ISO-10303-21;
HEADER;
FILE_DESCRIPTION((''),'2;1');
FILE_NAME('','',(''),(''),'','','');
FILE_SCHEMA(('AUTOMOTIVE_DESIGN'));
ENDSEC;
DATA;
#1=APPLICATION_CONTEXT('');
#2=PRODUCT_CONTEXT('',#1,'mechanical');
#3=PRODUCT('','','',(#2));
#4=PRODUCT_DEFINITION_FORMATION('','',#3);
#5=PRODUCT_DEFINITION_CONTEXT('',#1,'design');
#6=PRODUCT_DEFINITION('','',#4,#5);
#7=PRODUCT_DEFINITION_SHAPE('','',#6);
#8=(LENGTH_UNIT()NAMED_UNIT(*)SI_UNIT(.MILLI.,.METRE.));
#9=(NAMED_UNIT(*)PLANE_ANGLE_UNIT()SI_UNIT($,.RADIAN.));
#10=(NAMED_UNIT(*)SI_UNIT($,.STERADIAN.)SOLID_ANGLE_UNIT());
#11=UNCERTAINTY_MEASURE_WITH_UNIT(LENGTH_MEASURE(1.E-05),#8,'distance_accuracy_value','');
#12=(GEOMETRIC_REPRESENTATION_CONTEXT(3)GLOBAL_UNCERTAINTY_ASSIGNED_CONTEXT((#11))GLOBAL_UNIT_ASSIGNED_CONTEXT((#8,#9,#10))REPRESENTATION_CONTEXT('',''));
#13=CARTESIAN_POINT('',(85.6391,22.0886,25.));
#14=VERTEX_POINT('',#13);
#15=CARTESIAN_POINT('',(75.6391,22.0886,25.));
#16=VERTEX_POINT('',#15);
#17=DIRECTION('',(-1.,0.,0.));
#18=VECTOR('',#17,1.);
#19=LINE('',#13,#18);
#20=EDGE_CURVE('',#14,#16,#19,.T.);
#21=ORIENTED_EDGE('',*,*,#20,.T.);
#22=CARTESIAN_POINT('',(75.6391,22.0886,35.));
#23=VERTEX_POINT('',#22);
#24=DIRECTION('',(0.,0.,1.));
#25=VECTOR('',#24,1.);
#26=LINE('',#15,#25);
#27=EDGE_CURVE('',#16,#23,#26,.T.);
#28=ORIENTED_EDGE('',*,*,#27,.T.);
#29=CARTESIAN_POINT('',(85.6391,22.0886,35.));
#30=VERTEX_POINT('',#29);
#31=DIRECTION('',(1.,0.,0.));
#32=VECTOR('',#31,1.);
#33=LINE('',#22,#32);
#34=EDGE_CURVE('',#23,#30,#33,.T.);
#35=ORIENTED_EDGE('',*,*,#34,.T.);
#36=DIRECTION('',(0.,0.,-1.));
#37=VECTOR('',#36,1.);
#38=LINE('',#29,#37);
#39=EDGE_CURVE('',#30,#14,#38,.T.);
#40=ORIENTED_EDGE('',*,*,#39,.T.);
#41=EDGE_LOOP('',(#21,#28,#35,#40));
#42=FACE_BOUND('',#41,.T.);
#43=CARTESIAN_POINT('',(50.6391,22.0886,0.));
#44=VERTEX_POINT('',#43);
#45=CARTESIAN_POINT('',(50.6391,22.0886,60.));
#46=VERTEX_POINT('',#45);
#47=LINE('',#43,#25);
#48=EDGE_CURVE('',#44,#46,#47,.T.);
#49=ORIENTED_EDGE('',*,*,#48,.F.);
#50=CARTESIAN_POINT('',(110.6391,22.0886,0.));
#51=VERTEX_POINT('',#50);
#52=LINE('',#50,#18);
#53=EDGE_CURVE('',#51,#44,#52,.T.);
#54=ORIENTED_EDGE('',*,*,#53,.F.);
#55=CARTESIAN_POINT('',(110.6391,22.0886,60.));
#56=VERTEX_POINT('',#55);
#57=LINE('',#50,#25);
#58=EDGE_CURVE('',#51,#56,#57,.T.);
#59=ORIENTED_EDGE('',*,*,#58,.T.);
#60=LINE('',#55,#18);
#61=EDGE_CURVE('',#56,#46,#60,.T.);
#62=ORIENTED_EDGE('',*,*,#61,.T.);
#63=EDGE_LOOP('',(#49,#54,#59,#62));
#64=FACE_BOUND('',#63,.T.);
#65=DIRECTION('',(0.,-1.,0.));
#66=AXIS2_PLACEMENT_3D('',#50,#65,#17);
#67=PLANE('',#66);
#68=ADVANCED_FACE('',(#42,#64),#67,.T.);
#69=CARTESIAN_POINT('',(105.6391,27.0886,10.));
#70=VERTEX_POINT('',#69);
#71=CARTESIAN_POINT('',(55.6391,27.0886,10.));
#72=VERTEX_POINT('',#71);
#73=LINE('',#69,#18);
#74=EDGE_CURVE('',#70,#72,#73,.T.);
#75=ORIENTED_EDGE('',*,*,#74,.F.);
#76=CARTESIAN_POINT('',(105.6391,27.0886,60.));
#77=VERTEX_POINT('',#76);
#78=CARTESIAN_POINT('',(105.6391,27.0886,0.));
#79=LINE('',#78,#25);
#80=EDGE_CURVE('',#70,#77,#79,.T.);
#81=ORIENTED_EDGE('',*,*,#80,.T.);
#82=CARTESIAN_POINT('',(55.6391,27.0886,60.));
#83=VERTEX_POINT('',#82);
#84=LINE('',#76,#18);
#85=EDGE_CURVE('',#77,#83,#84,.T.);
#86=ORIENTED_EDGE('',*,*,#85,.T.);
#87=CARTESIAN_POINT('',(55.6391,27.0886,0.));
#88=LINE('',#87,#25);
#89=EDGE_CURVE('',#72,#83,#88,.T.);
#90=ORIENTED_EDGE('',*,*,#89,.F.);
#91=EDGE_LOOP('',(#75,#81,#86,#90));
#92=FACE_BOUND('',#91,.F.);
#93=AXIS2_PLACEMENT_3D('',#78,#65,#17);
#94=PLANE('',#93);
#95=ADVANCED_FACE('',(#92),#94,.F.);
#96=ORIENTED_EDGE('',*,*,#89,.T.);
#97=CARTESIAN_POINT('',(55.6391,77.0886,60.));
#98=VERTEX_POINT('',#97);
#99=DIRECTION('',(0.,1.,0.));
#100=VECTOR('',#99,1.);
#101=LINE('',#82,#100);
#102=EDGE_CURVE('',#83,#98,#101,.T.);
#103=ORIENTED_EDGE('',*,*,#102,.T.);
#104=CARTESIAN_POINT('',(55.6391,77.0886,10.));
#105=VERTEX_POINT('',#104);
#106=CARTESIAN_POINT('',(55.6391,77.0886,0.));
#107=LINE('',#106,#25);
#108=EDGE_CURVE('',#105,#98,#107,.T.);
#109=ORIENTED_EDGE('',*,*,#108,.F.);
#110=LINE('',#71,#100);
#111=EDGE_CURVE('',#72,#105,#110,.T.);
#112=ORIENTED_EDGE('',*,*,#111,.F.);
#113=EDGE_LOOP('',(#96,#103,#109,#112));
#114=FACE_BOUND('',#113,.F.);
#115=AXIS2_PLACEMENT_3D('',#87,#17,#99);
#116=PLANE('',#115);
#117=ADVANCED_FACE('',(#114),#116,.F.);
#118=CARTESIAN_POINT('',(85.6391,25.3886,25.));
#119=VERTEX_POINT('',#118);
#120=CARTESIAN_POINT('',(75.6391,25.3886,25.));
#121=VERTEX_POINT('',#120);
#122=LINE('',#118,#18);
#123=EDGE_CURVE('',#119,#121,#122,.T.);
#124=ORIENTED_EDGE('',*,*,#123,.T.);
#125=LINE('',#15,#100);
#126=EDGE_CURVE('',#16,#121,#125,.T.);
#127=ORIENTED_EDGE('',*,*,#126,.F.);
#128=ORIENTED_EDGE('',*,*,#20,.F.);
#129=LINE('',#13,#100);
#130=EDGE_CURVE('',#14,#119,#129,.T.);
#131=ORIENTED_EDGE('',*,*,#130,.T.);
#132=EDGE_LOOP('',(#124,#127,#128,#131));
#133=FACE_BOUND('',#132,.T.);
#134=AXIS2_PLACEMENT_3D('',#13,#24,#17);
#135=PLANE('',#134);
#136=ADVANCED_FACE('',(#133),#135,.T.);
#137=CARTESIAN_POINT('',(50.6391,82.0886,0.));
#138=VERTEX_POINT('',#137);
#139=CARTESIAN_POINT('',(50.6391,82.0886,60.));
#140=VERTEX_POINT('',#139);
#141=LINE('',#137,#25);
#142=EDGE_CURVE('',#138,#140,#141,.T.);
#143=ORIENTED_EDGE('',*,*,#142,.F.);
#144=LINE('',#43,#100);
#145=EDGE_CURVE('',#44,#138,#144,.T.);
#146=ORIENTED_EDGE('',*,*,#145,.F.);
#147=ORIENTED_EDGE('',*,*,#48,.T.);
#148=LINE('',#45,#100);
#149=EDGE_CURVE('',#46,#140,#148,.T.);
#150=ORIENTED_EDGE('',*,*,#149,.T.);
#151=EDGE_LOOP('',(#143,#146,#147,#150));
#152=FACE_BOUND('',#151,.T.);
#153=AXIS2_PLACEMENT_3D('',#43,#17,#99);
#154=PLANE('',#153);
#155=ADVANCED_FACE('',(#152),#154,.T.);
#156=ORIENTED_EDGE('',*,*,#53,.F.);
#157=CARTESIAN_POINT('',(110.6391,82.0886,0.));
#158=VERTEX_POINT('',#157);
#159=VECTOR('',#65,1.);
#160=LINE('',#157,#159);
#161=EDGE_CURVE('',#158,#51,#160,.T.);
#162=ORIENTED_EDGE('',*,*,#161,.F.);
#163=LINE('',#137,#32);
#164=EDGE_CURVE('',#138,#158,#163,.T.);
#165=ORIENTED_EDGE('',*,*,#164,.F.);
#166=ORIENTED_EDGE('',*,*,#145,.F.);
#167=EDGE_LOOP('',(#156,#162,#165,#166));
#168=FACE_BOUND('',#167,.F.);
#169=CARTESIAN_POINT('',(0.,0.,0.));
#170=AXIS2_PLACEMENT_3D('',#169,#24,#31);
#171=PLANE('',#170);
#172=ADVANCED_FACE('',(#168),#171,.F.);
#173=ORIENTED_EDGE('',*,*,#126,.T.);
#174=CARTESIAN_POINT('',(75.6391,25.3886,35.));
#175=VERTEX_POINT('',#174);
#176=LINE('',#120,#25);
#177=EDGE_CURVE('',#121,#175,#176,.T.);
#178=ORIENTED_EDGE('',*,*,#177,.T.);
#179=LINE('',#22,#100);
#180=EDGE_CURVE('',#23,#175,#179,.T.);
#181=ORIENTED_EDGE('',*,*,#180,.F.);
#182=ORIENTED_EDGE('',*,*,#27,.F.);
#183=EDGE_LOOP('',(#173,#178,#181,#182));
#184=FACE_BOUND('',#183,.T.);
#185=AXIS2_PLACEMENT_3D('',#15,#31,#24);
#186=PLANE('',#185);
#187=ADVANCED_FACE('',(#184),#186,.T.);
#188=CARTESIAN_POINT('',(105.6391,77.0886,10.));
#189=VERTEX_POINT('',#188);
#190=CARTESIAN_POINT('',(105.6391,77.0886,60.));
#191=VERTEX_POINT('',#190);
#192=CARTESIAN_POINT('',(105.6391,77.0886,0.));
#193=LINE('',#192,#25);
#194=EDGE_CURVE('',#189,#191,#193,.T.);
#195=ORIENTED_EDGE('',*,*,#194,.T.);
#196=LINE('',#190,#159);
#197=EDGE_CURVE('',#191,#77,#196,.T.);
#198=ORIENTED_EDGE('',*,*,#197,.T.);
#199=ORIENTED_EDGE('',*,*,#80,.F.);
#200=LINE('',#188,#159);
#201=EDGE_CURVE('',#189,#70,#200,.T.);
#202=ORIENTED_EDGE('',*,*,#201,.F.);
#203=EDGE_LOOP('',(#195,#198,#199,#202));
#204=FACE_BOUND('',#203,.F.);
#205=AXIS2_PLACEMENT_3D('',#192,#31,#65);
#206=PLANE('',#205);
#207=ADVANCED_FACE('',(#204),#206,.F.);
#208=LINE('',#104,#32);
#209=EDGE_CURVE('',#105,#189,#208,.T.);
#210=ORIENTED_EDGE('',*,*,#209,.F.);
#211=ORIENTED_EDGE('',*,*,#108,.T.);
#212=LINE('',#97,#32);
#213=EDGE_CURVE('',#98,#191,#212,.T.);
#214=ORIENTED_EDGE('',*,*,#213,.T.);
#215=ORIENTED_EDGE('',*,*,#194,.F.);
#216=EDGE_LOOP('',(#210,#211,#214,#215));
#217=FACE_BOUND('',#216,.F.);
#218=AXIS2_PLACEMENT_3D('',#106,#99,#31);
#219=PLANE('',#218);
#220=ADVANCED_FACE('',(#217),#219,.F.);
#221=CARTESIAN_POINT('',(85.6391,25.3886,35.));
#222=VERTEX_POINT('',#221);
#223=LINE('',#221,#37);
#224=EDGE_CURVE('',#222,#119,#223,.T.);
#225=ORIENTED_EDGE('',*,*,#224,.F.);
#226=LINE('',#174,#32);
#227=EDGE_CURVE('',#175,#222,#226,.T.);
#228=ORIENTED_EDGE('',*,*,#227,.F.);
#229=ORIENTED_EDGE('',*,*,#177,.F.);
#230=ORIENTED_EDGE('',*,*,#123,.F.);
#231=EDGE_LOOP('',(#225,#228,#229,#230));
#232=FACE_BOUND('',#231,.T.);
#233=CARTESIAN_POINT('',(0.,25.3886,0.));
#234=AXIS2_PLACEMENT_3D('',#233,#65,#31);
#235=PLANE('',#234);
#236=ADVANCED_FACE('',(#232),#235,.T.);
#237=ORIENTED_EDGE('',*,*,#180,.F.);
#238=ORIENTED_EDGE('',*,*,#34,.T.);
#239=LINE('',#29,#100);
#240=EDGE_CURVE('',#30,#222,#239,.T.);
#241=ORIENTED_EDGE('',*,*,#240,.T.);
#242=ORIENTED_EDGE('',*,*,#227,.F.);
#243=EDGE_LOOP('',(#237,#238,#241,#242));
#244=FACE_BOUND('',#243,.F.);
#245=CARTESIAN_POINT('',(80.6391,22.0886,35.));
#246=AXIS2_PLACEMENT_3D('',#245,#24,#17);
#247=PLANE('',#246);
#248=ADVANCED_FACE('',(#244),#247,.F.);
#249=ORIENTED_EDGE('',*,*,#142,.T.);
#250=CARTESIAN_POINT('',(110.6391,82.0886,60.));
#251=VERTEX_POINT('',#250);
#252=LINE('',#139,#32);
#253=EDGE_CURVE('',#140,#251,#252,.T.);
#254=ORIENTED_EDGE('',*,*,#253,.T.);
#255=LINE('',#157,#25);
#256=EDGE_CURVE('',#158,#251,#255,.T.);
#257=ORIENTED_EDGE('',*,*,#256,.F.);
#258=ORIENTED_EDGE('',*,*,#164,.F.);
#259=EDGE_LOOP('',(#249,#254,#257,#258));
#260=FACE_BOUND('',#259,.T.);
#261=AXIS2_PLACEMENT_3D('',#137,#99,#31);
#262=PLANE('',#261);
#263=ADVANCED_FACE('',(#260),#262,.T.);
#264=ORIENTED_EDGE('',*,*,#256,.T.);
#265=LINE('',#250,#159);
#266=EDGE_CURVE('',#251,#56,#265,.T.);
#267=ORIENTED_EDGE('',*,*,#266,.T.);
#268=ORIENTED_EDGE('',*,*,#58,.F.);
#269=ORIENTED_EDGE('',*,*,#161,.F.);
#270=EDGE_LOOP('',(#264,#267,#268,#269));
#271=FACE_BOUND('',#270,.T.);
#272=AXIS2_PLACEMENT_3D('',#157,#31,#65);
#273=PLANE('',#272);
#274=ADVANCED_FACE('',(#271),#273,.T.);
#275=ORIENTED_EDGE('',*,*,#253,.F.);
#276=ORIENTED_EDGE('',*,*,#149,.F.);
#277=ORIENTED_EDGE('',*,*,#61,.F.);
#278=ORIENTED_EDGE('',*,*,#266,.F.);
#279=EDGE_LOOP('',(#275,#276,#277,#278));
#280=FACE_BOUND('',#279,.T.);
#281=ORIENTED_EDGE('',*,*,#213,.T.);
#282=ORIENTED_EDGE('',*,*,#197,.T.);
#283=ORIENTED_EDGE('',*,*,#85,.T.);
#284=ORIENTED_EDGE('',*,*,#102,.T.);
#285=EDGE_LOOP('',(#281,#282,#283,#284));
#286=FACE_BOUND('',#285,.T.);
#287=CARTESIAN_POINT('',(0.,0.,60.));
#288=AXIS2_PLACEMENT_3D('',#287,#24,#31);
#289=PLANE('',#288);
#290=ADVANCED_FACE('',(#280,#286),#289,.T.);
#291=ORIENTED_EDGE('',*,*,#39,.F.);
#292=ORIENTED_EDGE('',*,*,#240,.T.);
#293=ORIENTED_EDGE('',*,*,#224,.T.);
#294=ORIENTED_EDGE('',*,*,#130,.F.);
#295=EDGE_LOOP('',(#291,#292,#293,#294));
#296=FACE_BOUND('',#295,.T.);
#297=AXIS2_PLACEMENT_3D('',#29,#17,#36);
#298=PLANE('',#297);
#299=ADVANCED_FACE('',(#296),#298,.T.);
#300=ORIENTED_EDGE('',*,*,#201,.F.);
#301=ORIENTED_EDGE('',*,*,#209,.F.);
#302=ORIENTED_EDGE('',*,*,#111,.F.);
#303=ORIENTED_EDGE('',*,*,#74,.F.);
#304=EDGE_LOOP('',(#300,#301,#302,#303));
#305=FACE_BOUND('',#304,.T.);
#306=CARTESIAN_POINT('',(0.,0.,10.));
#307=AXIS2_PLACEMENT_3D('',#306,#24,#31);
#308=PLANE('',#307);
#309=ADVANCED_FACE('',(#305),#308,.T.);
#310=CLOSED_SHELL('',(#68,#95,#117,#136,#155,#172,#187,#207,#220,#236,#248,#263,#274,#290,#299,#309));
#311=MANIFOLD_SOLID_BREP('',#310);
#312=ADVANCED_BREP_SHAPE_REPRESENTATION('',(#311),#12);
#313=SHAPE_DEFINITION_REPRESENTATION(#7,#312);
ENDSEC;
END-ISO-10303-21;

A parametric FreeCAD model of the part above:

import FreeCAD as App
import Part
import Sketcher


def add_polygon(sketch, points):
    """Adds a closed chain of lines whose ends are joined by coincident constraints."""
    first, n = sketch.GeometryCount, len(points)
    for a, b in zip(points, points[1:] + points[:1]):
        sketch.addGeometry(Part.LineSegment(App.Vector(*a, 0), App.Vector(*b, 0)), False)
    for i in range(n):
        sketch.addConstraint(Sketcher.Constraint("Coincident", first + i, 2, first + (i + 1) % n, 1))

doc = App.newDocument("Part")
body = doc.addObject("PartDesign::Body", "Body")

# Sketch on XY plane
sketch1 = body.newObject("Sketcher::SketchObject", "Sketch")
sketch1.AttachmentSupport = (doc.getObject("XY_Plane"), [""])
sketch1.MapMode = "FlatFace"
add_polygon(sketch1, [(106, 77), (56, 77), (56, 27), (106, 27)])  # lines 0-3
sketch1.addConstraint([
    Sketcher.Constraint("Horizontal", 0),
    Sketcher.Constraint("Vertical", 1),
    Sketcher.Constraint("Horizontal", 2),
    Sketcher.Constraint("Vertical", 3),
    Sketcher.Constraint("Equal", 2, 1),
    Sketcher.Constraint("DistanceX", 0, 2, 0, 1, 50.0),
    Sketcher.Constraint("DistanceX", -1, 1, 0, 2, 55.639),
    Sketcher.Constraint("DistanceY", -1, 1, 0, 2, 77.0886),
])
pad1 = body.newObject("PartDesign::Pad", "Pad")
pad1.Profile = sketch1
pad1.Length = 10

# Sketch on XY plane
sketch2 = body.newObject("Sketcher::SketchObject", "Sketch001")
sketch2.AttachmentSupport = (doc.getObject("XY_Plane"), [""])
sketch2.MapMode = "FlatFace"
add_polygon(sketch2, [(111, 82), (51, 82), (51, 22), (111, 22)])  # lines 0-3
add_polygon(sketch2, [(56, 27), (56, 77), (106, 77), (106, 27)])  # lines 4-7
sketch2.addConstraint([
    Sketcher.Constraint("Horizontal", 0),
    Sketcher.Constraint("Vertical", 1),
    Sketcher.Constraint("Horizontal", 2),
    Sketcher.Constraint("Vertical", 3),
    Sketcher.Constraint("Vertical", 4),
    Sketcher.Constraint("Horizontal", 5),
    Sketcher.Constraint("Vertical", 6),
    Sketcher.Constraint("Horizontal", 7),
    Sketcher.Constraint("Equal", 2, 1),
    Sketcher.Constraint("Equal", 7, 4),
    Sketcher.Constraint("DistanceX", 0, 2, 0, 1, 60.0),
    Sketcher.Constraint("DistanceX", 5, 1, 5, 2, 50.0),
    Sketcher.Constraint("DistanceX", 0, 2, 4, 2, 5.0),
    Sketcher.Constraint("DistanceY", 4, 2, 0, 2, 5.0),
    Sketcher.Constraint("DistanceX", -1, 1, 0, 2, 50.639),
    Sketcher.Constraint("DistanceY", -1, 1, 0, 2, 82.0886),
])
pad2 = body.newObject("PartDesign::Pad", "Pad001")
pad2.Profile = sketch2
pad2.Length = 60

# Sketch on XZ plane
sketch3 = body.newObject("Sketcher::SketchObject", "Sketch002")
sketch3.AttachmentSupport = (doc.getObject("XZ_Plane"), [""])
sketch3.MapMode = "FlatFace"
sketch3.AttachmentOffset = App.Placement(App.Vector(0, 0, -22.0886), App.Rotation())
add_polygon(sketch3, [(86, 35), (76, 35), (76, 25), (86, 25)])  # lines 0-3
sketch3.addConstraint([
    Sketcher.Constraint("Horizontal", 0),
    Sketcher.Constraint("Vertical", 1),
    Sketcher.Constraint("Horizontal", 2),
    Sketcher.Constraint("Vertical", 3),
    Sketcher.Constraint("Equal", 2, 1),
    Sketcher.Constraint("DistanceX", 0, 2, 0, 1, 10.0),
    Sketcher.Constraint("DistanceY", -1, 1, 0, 2, 35.0),
    Sketcher.Constraint("DistanceX", -1, 1, 0, 2, 75.639),
])
pocket1 = body.newObject("PartDesign::Pocket", "Pocket")
pocket1.Profile = sketch3
pocket1.Length = 3.3

doc.recompute()
